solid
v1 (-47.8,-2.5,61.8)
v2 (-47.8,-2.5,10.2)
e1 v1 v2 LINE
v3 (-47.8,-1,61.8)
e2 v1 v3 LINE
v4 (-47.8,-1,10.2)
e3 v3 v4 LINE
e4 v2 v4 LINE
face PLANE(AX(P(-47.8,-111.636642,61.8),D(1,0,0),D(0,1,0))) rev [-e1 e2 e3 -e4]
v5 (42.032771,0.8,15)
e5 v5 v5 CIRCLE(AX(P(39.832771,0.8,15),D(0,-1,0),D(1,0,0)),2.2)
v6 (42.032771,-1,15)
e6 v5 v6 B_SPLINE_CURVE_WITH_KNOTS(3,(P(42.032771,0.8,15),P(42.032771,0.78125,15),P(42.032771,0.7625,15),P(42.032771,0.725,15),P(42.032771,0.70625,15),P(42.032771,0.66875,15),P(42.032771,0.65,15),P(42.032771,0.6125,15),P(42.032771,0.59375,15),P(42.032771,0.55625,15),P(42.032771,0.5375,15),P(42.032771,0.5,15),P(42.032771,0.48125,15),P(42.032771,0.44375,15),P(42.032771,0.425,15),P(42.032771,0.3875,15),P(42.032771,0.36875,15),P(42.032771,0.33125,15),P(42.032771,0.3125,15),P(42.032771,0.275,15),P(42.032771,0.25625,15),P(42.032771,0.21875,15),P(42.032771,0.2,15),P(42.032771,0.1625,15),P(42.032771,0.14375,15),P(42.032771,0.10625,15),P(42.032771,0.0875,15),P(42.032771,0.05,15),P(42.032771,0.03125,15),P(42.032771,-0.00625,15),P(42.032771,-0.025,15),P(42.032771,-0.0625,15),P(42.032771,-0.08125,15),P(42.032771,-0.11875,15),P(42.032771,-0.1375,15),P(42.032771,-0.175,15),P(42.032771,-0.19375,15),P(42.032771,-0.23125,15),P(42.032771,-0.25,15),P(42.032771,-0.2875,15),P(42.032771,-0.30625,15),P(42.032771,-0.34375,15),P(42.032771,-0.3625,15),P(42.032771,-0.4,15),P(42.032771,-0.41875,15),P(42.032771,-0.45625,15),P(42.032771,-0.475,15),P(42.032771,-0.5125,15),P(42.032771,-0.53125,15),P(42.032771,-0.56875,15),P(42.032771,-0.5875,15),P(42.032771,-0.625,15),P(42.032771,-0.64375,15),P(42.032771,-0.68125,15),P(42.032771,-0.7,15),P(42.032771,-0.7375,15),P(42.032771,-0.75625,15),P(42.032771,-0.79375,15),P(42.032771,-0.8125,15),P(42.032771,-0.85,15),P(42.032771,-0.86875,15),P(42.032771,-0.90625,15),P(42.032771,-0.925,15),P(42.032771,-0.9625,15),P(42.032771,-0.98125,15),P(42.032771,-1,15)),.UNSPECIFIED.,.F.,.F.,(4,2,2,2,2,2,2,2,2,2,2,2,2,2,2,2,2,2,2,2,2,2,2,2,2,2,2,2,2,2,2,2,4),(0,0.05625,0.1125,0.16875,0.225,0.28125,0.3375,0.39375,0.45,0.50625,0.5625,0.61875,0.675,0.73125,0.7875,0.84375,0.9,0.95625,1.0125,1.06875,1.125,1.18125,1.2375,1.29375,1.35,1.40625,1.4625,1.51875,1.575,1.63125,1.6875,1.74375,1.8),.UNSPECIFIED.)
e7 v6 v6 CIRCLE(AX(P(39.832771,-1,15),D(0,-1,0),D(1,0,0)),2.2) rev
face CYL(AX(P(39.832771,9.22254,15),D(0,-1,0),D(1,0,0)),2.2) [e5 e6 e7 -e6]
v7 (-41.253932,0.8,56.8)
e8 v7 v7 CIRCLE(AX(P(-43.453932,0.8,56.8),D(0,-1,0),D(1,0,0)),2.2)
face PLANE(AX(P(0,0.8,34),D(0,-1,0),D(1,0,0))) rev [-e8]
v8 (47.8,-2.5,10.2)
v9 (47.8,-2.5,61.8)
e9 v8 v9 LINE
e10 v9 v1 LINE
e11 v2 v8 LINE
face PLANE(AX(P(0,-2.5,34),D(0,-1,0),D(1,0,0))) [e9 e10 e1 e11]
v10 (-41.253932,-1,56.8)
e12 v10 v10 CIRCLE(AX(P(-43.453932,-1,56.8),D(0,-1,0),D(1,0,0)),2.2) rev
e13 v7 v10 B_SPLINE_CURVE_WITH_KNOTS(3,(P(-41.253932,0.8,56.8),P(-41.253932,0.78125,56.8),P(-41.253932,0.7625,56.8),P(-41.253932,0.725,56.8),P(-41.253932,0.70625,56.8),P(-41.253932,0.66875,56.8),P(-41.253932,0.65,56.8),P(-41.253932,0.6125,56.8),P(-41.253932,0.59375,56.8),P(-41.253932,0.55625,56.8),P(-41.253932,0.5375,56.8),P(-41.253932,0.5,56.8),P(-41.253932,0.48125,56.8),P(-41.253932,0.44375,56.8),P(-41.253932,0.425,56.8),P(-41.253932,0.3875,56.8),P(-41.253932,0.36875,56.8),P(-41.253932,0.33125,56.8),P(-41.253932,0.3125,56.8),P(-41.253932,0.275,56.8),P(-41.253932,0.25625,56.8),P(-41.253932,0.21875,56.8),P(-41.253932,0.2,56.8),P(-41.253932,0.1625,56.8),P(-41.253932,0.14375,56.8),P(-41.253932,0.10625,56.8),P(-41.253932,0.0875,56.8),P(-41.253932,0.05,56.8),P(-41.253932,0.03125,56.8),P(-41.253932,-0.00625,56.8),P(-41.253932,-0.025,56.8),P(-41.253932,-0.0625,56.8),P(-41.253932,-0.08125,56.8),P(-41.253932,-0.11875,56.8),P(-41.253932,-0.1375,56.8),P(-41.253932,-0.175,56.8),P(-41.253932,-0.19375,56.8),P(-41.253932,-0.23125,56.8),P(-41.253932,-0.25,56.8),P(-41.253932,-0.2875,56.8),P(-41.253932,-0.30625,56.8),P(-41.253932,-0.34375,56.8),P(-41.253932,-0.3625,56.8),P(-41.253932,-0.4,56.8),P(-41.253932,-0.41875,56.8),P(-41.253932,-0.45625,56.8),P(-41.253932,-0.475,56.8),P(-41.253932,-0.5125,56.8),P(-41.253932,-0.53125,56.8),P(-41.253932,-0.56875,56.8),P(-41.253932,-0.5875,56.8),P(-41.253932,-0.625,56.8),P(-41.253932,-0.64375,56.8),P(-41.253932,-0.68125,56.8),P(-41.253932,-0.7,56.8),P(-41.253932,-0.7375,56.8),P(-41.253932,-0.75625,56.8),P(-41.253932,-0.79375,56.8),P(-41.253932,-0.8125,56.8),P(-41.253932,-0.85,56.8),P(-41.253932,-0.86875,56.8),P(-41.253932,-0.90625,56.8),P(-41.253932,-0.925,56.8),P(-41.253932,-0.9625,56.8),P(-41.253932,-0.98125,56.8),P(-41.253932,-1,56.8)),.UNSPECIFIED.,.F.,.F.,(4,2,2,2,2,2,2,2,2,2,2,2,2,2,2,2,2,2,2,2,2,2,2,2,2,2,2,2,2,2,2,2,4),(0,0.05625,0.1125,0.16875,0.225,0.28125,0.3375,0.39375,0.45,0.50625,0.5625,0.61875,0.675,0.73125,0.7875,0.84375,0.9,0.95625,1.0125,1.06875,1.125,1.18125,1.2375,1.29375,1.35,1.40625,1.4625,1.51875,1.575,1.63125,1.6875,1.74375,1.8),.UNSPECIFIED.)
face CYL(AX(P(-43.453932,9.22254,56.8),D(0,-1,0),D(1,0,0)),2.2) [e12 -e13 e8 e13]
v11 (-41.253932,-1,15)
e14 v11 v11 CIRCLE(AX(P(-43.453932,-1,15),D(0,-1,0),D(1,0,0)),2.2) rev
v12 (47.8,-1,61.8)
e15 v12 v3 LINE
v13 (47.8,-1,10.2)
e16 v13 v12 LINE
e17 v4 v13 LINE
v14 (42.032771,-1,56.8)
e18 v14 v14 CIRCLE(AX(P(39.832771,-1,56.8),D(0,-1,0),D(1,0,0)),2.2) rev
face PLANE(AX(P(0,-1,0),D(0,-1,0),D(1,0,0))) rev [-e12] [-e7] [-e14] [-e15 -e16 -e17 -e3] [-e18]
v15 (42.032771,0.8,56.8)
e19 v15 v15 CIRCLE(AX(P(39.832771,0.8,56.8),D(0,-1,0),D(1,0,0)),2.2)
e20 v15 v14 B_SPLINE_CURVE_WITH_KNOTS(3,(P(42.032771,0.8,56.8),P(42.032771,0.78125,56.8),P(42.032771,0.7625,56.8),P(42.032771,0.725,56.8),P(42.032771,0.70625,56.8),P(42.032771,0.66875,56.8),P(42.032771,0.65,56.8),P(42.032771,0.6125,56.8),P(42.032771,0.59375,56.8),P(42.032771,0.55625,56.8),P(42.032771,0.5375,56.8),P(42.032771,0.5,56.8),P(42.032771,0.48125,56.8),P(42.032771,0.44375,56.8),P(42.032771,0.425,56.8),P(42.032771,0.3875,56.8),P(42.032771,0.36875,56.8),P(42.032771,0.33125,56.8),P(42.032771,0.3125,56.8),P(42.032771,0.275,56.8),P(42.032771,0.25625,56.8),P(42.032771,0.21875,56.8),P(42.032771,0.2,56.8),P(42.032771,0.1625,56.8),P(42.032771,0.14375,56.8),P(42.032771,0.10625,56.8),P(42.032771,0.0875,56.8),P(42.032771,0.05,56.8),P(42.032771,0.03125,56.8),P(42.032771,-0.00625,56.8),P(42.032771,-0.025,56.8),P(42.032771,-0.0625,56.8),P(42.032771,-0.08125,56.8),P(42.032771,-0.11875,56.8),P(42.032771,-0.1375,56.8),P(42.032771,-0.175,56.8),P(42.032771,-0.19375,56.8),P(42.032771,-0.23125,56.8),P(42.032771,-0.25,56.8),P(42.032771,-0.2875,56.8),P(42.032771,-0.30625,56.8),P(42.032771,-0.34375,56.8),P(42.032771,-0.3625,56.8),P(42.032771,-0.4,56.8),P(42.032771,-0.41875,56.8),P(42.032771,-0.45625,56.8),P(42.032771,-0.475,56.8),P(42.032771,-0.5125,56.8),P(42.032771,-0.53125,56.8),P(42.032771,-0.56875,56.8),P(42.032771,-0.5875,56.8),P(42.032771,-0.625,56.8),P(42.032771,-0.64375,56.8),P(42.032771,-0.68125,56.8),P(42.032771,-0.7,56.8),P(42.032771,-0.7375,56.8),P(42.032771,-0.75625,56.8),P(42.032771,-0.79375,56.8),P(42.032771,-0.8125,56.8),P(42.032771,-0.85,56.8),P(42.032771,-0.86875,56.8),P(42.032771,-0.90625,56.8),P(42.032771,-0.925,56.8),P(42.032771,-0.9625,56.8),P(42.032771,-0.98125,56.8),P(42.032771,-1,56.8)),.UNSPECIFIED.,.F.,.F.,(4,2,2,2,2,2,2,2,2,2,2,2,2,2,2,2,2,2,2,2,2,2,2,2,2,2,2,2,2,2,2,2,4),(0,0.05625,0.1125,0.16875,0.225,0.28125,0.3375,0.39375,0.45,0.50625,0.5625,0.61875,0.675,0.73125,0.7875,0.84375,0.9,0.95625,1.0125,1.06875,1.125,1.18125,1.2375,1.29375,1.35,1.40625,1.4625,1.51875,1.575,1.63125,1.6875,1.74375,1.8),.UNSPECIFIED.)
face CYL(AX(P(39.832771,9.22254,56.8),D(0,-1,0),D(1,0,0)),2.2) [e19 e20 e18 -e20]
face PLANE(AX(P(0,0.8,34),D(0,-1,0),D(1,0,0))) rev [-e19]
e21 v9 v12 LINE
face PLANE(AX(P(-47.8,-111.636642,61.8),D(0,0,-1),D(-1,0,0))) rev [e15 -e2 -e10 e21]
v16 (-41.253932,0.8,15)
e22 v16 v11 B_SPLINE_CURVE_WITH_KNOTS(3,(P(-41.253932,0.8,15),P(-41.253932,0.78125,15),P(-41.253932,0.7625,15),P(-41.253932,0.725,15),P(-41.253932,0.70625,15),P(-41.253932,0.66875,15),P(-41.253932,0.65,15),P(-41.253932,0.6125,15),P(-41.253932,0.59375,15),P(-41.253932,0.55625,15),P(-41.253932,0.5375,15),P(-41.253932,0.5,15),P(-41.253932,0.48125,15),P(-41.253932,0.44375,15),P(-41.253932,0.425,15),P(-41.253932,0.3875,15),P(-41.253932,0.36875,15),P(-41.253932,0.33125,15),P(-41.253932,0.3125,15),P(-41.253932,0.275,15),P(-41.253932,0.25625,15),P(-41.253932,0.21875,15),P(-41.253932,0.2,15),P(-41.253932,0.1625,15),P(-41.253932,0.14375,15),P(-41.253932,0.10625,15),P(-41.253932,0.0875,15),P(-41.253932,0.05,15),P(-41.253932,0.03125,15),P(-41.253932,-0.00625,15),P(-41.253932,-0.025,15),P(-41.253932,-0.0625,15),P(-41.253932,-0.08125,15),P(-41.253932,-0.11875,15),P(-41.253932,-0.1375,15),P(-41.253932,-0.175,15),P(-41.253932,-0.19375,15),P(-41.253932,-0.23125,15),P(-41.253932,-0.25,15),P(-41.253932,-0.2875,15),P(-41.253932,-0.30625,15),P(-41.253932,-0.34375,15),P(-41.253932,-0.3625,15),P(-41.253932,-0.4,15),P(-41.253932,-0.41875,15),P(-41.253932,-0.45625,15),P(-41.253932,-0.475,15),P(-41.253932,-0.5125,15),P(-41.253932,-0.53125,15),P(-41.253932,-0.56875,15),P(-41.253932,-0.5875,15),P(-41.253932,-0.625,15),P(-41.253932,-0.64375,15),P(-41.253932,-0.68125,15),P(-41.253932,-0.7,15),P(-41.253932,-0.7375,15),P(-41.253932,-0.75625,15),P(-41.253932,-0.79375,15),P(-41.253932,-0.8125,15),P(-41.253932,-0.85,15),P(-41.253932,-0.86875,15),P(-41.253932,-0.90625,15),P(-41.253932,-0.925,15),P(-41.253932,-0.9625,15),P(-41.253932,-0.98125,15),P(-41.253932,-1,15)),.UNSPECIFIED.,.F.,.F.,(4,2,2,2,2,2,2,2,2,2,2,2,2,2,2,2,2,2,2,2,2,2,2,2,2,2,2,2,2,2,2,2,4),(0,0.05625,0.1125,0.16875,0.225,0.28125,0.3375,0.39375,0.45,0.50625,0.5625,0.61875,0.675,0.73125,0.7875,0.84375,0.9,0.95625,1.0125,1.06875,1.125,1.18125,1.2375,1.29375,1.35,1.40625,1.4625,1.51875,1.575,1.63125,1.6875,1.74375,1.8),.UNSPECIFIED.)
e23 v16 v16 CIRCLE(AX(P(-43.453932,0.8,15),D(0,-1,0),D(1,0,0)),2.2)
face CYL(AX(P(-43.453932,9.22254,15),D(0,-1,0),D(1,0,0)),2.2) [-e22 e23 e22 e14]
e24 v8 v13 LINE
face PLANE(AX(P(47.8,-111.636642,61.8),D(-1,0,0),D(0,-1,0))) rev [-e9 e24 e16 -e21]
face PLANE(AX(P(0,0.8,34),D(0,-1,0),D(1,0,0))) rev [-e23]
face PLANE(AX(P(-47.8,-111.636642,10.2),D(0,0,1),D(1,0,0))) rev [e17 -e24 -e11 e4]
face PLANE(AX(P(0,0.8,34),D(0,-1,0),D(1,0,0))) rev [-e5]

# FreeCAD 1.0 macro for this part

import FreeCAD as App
import Part
import Sketcher

doc = App.newDocument("Part")
body = doc.addObject("PartDesign::Body", "Body")

sketch1 = body.newObject("Sketcher::SketchObject", "Sketch")
sketch1.AttachmentSupport = (doc.getObject("XZ_Plane"), [""])
sketch1.MapMode = "FlatFace"
sketch1.AttachmentOffset = App.Placement(App.Vector(0, 0, 1), App.Rotation())
sketch1.addGeometry(Part.LineSegment(App.Vector(-47.8, 61.8, 0), App.Vector(-47.8, 10.2, 0)), False)
sketch1.addGeometry(Part.LineSegment(App.Vector(-47.8, 10.2, 0), App.Vector(47.8, 10.2, 0)), False)
sketch1.addGeometry(Part.LineSegment(App.Vector(47.8, 10.2, 0), App.Vector(47.8, 61.8, 0)), False)
sketch1.addGeometry(Part.LineSegment(App.Vector(47.8, 61.8, 0), App.Vector(-47.8, 61.8, 0)), False)
sketch1.addConstraint(Sketcher.Constraint("Coincident", 0, 2, 1, 1))
sketch1.addConstraint(Sketcher.Constraint("Coincident", 1, 2, 2, 1))
sketch1.addConstraint(Sketcher.Constraint("Coincident", 2, 2, 3, 1))
sketch1.addConstraint(Sketcher.Constraint("Coincident", 3, 2, 0, 1))
sketch1.addConstraint(Sketcher.Constraint("Vertical", 0))
sketch1.addConstraint(Sketcher.Constraint("Horizontal", 1))
sketch1.addConstraint(Sketcher.Constraint("Vertical", 2))
sketch1.addConstraint(Sketcher.Constraint("Horizontal", 3))
sketch1.addConstraint(Sketcher.Constraint("DistanceX", 1, 1, 1, 2, 95.6))
sketch1.addConstraint(Sketcher.Constraint("DistanceY", 0, 2, 0, 1, 51.6))
sketch1.addConstraint(Sketcher.Constraint("DistanceX", 0, 2, -1, 1, 47.8))
sketch1.addConstraint(Sketcher.Constraint("DistanceY", -1, 1, 0, 2, 10.2))
pad1 = body.newObject("PartDesign::Pad", "Pad")
pad1.Profile = sketch1
pad1.Length = 1.5

sketch2 = body.newObject("Sketcher::SketchObject", "Sketch001")
sketch2.AttachmentSupport = (doc.getObject("XZ_Plane"), [""])
sketch2.MapMode = "FlatFace"
sketch2.AttachmentOffset = App.Placement(App.Vector(0, 0, 1), App.Rotation())
sketch2.addGeometry(Part.Circle(App.Vector(-43.453932, 56.8, 0), App.Vector(0, 0, 1), 2.2), False)
sketch2.addGeometry(Part.Circle(App.Vector(-43.453932, 15, 0), App.Vector(0, 0, 1), 2.2), False)
sketch2.addGeometry(Part.Circle(App.Vector(39.832771, 15, 0), App.Vector(0, 0, 1), 2.2), False)
sketch2.addGeometry(Part.Circle(App.Vector(39.832771, 56.8, 0), App.Vector(0, 0, 1), 2.2), False)
sketch2.addConstraint(Sketcher.Constraint("Equal", 0, 1))
sketch2.addConstraint(Sketcher.Constraint("Equal", 1, 2))
sketch2.addConstraint(Sketcher.Constraint("Equal", 2, 3))
sketch2.addConstraint(Sketcher.Constraint("Horizontal", 1, 3, 2, 3))
sketch2.addConstraint(Sketcher.Constraint("Horizontal", 0, 3, 3, 3))
sketch2.addConstraint(Sketcher.Constraint("Vertical", 0, 3, 1, 3))
sketch2.addConstraint(Sketcher.Constraint("Vertical", 2, 3, 3, 3))
sketch2.addConstraint(Sketcher.Constraint("Diameter", 0, 4.4))
sketch2.addConstraint(Sketcher.Constraint("DistanceY", -1, 1, 1, 3, 15.0))
sketch2.addConstraint(Sketcher.Constraint("DistanceY", -1, 1, 0, 3, 56.8))
sketch2.addConstraint(Sketcher.Constraint("DistanceX", -1, 1, 2, 3, 39.832771))
sketch2.addConstraint(Sketcher.Constraint("DistanceX", 0, 3, -1, 1, 43.453932))
pad2 = body.newObject("PartDesign::Pad", "Pad001")
pad2.Profile = sketch2
pad2.Length = 1.8
pad2.Reversed = True

doc.recompute()
